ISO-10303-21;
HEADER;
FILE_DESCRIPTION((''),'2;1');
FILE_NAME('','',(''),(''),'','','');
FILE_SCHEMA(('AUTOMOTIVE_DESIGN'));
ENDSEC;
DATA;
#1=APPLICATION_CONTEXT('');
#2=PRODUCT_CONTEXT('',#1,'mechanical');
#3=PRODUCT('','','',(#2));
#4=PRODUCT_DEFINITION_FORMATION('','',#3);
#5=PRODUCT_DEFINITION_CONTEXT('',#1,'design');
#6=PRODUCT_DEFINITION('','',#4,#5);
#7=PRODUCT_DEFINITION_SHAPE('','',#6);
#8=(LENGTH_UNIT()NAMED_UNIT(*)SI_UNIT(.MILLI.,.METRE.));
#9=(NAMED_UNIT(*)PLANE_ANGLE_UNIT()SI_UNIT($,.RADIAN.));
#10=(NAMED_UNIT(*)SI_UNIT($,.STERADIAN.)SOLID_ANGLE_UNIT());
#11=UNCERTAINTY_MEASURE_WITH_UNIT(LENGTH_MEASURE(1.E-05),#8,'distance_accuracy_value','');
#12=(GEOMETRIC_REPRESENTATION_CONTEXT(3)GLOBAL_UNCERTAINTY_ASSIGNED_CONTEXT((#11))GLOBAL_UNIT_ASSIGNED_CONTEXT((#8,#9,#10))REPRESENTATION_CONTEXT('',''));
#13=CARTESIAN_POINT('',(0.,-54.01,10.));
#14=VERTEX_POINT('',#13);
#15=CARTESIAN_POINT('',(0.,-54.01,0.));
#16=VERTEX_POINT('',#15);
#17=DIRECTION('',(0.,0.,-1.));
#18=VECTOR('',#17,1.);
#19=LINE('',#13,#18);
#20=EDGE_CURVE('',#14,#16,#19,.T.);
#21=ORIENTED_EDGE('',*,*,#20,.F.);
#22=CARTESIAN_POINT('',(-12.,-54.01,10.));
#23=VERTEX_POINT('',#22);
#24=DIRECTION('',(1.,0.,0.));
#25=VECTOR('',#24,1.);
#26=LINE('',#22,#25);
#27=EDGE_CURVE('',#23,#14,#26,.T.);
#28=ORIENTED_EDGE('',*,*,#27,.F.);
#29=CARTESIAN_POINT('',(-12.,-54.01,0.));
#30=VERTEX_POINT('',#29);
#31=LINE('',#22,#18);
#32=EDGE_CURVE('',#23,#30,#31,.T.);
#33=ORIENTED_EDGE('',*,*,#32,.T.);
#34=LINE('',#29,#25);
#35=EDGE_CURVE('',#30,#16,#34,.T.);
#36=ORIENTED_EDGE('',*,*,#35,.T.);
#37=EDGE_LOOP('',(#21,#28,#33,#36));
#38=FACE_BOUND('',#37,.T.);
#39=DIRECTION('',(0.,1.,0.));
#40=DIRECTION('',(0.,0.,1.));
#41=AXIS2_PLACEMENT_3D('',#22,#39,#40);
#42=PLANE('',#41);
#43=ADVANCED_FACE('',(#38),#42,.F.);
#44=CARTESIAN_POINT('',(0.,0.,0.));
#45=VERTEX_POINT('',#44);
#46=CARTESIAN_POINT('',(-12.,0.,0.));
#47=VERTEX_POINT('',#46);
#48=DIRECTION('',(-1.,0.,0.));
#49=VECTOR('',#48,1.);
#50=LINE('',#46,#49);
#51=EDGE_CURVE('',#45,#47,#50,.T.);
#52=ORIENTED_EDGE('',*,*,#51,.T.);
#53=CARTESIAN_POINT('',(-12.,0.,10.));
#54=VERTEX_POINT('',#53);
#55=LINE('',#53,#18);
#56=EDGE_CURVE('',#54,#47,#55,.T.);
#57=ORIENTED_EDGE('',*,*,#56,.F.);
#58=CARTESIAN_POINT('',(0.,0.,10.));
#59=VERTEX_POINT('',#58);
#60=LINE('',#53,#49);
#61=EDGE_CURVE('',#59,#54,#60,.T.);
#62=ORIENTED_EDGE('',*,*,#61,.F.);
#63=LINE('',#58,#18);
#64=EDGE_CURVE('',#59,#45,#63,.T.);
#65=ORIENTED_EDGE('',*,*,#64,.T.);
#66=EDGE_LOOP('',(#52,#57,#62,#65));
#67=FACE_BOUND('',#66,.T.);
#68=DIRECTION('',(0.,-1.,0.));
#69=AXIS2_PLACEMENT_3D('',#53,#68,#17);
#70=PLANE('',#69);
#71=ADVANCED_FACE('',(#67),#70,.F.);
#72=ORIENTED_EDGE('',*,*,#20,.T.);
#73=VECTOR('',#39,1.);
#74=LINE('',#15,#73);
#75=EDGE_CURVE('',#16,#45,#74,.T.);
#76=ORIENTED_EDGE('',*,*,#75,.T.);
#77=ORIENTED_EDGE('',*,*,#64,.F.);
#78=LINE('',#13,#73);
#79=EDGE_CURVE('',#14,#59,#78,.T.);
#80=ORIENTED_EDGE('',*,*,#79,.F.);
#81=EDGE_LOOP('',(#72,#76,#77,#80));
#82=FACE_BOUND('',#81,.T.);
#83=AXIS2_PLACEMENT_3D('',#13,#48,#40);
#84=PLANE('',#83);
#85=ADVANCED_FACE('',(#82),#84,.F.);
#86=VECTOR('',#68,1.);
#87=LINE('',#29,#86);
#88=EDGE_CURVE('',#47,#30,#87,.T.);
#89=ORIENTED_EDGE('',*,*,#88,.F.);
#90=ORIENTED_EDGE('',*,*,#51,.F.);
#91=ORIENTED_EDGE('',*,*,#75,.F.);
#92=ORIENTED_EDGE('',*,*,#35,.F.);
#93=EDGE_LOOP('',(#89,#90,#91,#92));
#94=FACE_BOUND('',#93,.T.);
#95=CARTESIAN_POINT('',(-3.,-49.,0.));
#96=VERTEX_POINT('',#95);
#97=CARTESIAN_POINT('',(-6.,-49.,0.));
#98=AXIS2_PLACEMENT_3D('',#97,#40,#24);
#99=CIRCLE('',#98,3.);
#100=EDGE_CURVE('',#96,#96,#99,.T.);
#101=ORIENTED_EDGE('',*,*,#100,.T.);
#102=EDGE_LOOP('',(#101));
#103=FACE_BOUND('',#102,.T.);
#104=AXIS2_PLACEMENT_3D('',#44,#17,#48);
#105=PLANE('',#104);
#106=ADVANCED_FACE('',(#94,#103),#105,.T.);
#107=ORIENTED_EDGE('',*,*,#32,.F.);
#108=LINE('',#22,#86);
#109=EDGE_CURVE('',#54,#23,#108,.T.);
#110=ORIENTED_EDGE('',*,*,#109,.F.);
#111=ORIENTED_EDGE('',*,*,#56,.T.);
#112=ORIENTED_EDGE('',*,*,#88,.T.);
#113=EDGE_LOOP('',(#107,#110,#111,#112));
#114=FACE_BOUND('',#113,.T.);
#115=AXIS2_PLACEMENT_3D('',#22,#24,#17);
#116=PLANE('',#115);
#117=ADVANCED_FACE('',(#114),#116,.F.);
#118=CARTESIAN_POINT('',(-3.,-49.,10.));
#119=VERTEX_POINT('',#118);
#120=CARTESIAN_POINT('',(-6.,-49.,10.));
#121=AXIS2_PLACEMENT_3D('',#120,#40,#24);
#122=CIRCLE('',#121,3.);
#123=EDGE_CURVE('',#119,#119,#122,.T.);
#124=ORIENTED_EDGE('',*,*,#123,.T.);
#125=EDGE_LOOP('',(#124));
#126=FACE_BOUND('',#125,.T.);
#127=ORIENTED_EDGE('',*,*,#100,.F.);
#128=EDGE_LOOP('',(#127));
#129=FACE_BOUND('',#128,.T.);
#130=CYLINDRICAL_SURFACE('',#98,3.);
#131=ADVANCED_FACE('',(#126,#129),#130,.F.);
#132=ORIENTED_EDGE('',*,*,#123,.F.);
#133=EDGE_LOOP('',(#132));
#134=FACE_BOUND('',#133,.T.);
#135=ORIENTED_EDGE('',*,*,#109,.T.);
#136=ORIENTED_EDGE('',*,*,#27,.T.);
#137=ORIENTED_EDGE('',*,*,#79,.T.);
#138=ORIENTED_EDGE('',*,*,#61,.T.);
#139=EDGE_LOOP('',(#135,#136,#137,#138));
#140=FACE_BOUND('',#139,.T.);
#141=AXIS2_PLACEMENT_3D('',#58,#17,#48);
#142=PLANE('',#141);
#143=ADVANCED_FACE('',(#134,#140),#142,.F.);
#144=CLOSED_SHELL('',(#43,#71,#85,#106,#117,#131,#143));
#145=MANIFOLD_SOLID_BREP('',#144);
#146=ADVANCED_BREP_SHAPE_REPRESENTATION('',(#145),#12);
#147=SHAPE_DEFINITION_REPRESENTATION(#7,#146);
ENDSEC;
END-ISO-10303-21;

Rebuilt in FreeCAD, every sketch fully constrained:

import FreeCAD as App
import Part
import Sketcher

V = App.Vector
Q = App.Units.Quantity

doc = App.newDocument("Part")
body = doc.addObject("PartDesign::Body", "Body")

# Sketch on XY plane
sketch1 = body.newObject("Sketcher::SketchObject", "Sketch")
sketch1.AttachmentSupport = (doc.getObject("XY_Plane"), [""])
sketch1.MapMode = "FlatFace"
sketch1.addGeometry([
    Part.LineSegment(V(-12, 0, 0), V(-12, -54, 0)),
    Part.LineSegment(V(-12, -54, 0), V(0, -54, 0)),
    Part.LineSegment(V(0, -54, 0), V(0, 0, 0)),
    Part.LineSegment(V(0, 0, 0), V(-12, 0, 0)),
], False)
sketch1.addConstraint([
    Sketcher.Constraint("Coincident", 0, 2, 1, 1),
    Sketcher.Constraint("Coincident", 1, 2, 2, 1),
    Sketcher.Constraint("Coincident", 2, 2, 3, 1),
    Sketcher.Constraint("Coincident", 3, 2, 0, 1),
    Sketcher.Constraint("Vertical", 0),
    Sketcher.Constraint("Horizontal", 1),
    Sketcher.Constraint("Vertical", 2),
    Sketcher.Constraint("Horizontal", 3),
    Sketcher.Constraint("Coincident", 2, 2, -1, 1),
    Sketcher.Constraint("DistanceX", 1, 1, 1, 2, Q("12 mm")),
    Sketcher.Constraint("DistanceY", 0, 2, 0, 1, Q("54.01 mm")),
])
pad1 = body.newObject("PartDesign::Pad", "Pad")
pad1.Profile = sketch1
pad1.Length = 10

# Sketch on XY plane
sketch2 = body.newObject("Sketcher::SketchObject", "Sketch001")
sketch2.AttachmentSupport = (doc.getObject("XY_Plane"), [""])
sketch2.MapMode = "FlatFace"
sketch2.AttachmentOffset = App.Placement(V(0, 0, 10), App.Rotation())
sketch2.addGeometry(Part.Circle(V(-6, -49, 0), V(0, 0, 1), 3), False)
sketch2.addConstraint([
    Sketcher.Constraint("Diameter", 0, Q("6 mm")),
    Sketcher.Constraint("DistanceX", 0, 3, -1, 1, Q("6 mm")),
    Sketcher.Constraint("DistanceY", 0, 3, -1, 1, Q("49 mm")),
])
pocket1 = body.newObject("PartDesign::Pocket", "Pocket")
pocket1.Profile = sketch2
pocket1.Length = 10

doc.recompute()
